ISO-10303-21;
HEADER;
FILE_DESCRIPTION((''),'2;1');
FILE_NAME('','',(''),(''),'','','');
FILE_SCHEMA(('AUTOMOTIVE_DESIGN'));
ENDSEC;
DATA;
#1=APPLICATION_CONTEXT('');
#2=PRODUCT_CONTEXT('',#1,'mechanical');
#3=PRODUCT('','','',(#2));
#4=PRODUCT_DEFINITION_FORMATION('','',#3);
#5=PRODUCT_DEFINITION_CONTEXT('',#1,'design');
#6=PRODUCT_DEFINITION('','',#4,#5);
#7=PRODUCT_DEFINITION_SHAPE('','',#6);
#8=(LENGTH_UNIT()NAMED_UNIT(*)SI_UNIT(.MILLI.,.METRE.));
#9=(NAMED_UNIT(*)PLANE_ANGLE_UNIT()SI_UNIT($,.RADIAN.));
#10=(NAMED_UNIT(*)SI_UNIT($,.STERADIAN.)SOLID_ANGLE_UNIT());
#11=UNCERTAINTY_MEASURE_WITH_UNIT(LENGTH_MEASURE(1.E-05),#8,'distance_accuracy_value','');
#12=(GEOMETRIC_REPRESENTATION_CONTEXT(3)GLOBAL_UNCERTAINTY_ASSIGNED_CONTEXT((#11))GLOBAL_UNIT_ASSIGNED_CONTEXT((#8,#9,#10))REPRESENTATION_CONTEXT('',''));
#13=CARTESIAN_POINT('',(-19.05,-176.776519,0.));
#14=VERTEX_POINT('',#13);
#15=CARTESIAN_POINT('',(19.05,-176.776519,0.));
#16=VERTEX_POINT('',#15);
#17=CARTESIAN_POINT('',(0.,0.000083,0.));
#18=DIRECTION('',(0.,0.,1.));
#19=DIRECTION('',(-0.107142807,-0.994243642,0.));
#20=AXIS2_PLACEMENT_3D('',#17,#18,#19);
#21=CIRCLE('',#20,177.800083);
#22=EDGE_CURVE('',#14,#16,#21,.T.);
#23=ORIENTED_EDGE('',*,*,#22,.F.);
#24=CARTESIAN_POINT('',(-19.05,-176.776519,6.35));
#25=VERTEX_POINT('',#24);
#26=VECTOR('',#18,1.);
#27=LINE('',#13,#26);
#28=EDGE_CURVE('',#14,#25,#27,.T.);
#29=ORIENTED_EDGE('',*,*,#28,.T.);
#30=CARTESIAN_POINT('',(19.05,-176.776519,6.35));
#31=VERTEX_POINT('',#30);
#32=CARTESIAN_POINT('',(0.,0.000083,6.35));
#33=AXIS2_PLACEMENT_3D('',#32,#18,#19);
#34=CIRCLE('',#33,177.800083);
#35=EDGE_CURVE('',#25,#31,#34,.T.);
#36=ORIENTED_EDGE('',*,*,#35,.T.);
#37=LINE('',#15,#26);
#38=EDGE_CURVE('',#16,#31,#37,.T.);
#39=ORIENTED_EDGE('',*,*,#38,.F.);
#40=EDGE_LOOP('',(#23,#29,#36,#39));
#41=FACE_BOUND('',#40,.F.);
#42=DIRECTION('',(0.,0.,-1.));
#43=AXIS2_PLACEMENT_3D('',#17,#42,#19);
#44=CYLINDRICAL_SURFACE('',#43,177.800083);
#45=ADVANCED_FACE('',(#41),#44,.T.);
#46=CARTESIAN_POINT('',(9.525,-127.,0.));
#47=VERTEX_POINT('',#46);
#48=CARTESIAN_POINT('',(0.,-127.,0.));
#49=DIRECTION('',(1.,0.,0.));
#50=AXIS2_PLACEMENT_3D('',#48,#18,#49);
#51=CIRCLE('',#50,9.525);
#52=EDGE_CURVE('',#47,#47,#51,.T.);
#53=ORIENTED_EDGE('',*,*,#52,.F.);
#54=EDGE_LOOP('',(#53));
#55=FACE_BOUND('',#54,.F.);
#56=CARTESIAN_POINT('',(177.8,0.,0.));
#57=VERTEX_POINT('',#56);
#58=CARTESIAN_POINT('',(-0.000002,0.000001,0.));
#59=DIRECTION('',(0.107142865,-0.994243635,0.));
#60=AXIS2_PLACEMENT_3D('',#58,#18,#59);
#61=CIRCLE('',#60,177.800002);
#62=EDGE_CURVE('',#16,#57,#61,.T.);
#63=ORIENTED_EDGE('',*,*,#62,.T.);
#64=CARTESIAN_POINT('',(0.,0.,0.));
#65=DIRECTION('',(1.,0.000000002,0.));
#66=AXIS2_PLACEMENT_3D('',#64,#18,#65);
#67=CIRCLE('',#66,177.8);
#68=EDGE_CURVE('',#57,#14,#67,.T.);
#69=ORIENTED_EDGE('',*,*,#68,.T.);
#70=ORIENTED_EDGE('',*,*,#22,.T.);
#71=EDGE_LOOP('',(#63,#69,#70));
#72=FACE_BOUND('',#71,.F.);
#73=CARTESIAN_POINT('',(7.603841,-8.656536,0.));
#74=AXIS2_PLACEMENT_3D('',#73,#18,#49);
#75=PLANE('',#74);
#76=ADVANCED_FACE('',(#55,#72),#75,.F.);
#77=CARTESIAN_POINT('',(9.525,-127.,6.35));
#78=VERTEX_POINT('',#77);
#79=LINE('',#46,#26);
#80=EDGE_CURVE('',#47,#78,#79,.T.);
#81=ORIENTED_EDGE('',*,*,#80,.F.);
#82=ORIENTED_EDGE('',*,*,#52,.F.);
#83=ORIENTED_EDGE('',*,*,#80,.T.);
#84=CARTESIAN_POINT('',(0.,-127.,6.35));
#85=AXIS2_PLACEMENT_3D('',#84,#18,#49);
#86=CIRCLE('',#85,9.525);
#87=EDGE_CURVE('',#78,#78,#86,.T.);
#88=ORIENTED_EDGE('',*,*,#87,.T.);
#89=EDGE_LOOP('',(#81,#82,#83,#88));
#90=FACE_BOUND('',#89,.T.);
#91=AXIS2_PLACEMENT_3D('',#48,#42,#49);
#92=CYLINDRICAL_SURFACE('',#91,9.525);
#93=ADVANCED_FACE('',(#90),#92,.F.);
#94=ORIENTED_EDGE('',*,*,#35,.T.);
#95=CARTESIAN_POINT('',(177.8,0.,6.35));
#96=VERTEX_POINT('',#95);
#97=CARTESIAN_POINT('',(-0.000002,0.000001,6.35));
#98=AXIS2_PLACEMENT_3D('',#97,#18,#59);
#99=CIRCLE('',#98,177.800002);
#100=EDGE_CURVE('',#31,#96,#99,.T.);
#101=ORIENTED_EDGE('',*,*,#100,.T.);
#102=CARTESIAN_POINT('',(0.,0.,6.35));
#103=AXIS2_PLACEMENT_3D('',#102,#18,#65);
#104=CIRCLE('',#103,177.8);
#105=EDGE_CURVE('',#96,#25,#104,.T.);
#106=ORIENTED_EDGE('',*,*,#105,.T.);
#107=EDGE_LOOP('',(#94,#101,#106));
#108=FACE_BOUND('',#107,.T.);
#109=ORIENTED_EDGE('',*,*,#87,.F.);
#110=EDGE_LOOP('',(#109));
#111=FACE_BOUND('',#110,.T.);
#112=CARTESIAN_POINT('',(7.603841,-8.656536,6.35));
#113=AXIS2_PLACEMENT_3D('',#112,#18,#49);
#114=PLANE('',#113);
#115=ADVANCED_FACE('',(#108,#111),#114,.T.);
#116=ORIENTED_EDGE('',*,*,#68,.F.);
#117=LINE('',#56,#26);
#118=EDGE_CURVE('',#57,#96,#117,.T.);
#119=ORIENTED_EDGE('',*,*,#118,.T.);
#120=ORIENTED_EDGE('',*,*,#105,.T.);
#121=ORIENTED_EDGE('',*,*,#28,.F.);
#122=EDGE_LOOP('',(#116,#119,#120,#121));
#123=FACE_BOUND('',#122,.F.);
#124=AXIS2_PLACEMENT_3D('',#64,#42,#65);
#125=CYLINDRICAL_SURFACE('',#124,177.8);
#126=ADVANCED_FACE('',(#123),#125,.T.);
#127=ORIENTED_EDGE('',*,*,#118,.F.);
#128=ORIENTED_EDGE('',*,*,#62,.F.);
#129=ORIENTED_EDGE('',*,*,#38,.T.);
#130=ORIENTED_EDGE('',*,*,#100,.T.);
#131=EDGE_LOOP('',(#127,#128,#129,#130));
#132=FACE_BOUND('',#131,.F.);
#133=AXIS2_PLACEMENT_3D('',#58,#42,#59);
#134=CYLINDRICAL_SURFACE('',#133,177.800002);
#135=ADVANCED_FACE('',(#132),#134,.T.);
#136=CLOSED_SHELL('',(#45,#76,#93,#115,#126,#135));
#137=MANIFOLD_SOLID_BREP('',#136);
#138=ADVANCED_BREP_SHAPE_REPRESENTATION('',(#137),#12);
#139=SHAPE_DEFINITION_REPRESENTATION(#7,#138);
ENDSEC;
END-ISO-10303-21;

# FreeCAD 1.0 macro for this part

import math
import FreeCAD as App
import Part
import Sketcher

V = App.Vector
Q = App.Units.Quantity

doc = App.newDocument("Part")
body = doc.addObject("PartDesign::Body", "Body")

# Sketch on XY plane
sketch1 = body.newObject("Sketcher::SketchObject", "Sketch")
sketch1.AttachmentSupport = (doc.getObject("XY_Plane"), [""])
sketch1.MapMode = "FlatFace"
sketch1.addGeometry(Part.ArcOfCircle(Part.Circle(V(-0.000002, 0.000001, 0), V(0, 0, 1), 177.800002), math.radians(-83.84936), math.radians(0)), False)
sketch1.addGeometry(Part.ArcOfCircle(Part.Circle(V(0, 0, 0), V(0, 0, 1), 177.8), math.radians(0), math.radians(263.84936)), False)
sketch1.addGeometry(Part.ArcOfCircle(Part.Circle(V(0, 0.000083, 0), V(0, 0, 1), 177.800083), math.radians(-96.150637), math.radians(-83.849363)), False)
sketch1.addGeometry(Part.Circle(V(0, -127, 0), V(0, 0, 1), 9.525), False)
sketch1.addConstraint(Sketcher.Constraint("Coincident", 0, 2, 1, 1))
sketch1.addConstraint(Sketcher.Constraint("Coincident", 1, 2, 2, 1))
sketch1.addConstraint(Sketcher.Constraint("Coincident", 2, 2, 0, 1))
sketch1.addConstraint(Sketcher.Constraint("Coincident", 0, 3, -1, 1))
sketch1.addConstraint(Sketcher.Constraint("Coincident", 1, 3, -1, 1))
sketch1.addConstraint(Sketcher.Constraint("PointOnObject", 3, 3, -2))
sketch1.addConstraint(Sketcher.Constraint("PointOnObject", 0, 2, -1))
sketch1.addConstraint(Sketcher.Constraint("Radius", 0, Q("7.0000001 in")))
sketch1.addConstraint(Sketcher.Constraint("Diameter", 3, Q("0.75 in")))
sketch1.addConstraint(Sketcher.Constraint("DistanceY", 3, 3, -1, 1, Q("5 in")))
sketch1.addConstraint(Sketcher.Constraint("DistanceX", 1, 2, 2, 2, Q("1.5 in")))
sketch1.addConstraint(Sketcher.Constraint("DistanceX", 1, 2, -1, 1, Q("0.75 in")))
sketch1.addConstraint(Sketcher.Constraint("Radius", 2, Q("177.800083 mm")))
pad1 = body.newObject("PartDesign::Pad", "Pad")
pad1.Profile = sketch1
pad1.Length = Q("0.25 in")

# Sketch on XY plane
sketch2 = body.newObject("Sketcher::SketchObject", "Sketch001")
sketch2.AttachmentSupport = (doc.getObject("XY_Plane"), [""])
sketch2.MapMode = "FlatFace"
sketch2.addGeometry(Part.ArcOfCircle(Part.Circle(V(-0.000002, 0.000001, 0), V(0, 0, 1), 177.800002), math.radians(-83.84936), math.radians(0)), False)
sketch2.addGeometry(Part.ArcOfCircle(Part.Circle(V(0, 0, 0), V(0, 0, 1), 177.8), math.radians(0), math.radians(263.84936)), False)
sketch2.addGeometry(Part.ArcOfCircle(Part.Circle(V(0, 0.000083, 0), V(0, 0, 1), 177.800083), math.radians(-96.150637), math.radians(-83.849363)), False)
sketch2.addGeometry(Part.Circle(V(0, -127, 0), V(0, 0, 1), 9.525), False)
sketch2.addConstraint(Sketcher.Constraint("Coincident", 0, 2, 1, 1))
sketch2.addConstraint(Sketcher.Constraint("Coincident", 1, 2, 2, 1))
sketch2.addConstraint(Sketcher.Constraint("Coincident", 2, 2, 0, 1))
sketch2.addConstraint(Sketcher.Constraint("Coincident", 0, 3, -1, 1))
sketch2.addConstraint(Sketcher.Constraint("Coincident", 1, 3, -1, 1))
sketch2.addConstraint(Sketcher.Constraint("PointOnObject", 3, 3, -2))
sketch2.addConstraint(Sketcher.Constraint("PointOnObject", 0, 2, -1))
sketch2.addConstraint(Sketcher.Constraint("Radius", 0, Q("7.0000001 in")))
sketch2.addConstraint(Sketcher.Constraint("Diameter", 3, Q("0.75 in")))
sketch2.addConstraint(Sketcher.Constraint("DistanceY", 3, 3, -1, 1, Q("5 in")))
sketch2.addConstraint(Sketcher.Constraint("DistanceX", 1, 2, 2, 2, Q("1.5 in")))
sketch2.addConstraint(Sketcher.Constraint("DistanceX", 1, 2, -1, 1, Q("0.75 in")))
sketch2.addConstraint(Sketcher.Constraint("Radius", 2, Q("177.800083 mm")))
pad2 = body.newObject("PartDesign::Pad", "Pad001")
pad2.Profile = sketch2
pad2.Length = Q("0.25 in")

doc.recompute()
